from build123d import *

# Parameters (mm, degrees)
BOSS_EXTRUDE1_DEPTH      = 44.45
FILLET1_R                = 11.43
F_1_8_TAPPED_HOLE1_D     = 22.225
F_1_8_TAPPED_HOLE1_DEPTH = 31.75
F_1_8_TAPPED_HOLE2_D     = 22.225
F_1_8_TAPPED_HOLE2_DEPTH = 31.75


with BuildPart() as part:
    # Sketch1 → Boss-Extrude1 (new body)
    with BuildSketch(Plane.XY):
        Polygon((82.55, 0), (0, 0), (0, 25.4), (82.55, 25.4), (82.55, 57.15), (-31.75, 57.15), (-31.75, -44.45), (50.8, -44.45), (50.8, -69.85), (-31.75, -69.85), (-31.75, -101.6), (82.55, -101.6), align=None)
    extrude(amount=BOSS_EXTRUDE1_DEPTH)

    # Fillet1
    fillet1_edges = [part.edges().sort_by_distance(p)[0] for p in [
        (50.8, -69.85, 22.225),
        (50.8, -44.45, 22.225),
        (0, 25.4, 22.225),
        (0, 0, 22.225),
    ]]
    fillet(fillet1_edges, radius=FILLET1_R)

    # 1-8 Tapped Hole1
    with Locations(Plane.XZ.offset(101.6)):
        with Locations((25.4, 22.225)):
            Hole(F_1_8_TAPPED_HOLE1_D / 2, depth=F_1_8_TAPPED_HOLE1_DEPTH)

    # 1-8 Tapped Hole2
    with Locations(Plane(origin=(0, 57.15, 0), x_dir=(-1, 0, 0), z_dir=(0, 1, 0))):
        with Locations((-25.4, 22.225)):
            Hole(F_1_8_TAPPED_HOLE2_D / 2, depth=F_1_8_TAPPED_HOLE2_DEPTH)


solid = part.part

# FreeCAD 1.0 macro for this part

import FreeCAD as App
import Part
import Sketcher
from FreeCAD import Vector
Q = App.Units.Quantity


def edges_at(feature, points):
    """Names of the edges that pass closest to the given points."""
    edges = feature.Shape.Edges
    near = lambda p: min(range(len(edges)), key=lambda i: edges[i].distToShape(Part.Vertex(*p))[0])
    return sorted({f"Edge{near(p) + 1}" for p in points})


def add_polygon(sketch, points):
    """Adds a closed chain of lines whose ends are joined by coincident constraints."""
    first, n = sketch.GeometryCount, len(points)
    for a, b in zip(points, points[1:] + points[:1]):
        sketch.addGeometry(Part.LineSegment(App.Vector(*a, 0), App.Vector(*b, 0)), False)
    for i in range(n):
        sketch.addConstraint(Sketcher.Constraint("Coincident", first + i, 2, first + (i + 1) % n, 1))

doc = App.newDocument("Part")
body = doc.addObject("PartDesign::Body", "Body")

sketch1 = doc.addObject("Sketcher::SketchObject", "Sketch")
body.addObject(sketch1)
sketch1.AttachmentSupport = (doc.XY_Plane, [""])
sketch1.MapMode = "FlatFace"
add_polygon(sketch1, [(83, 0), (0, 0), (0, 25), (83, 25), (83, 57), (-32, 57), (-32, -44), (51, -44), (51, -70), (-32, -70), (-32, -102), (83, -102)])
sketch1.addConstraint([
    Sketcher.Constraint("Horizontal", 0),
    Sketcher.Constraint("Vertical", 1),
    Sketcher.Constraint("Horizontal", 2),
    Sketcher.Constraint("Vertical", 3),
    Sketcher.Constraint("Horizontal", 4),
    Sketcher.Constraint("Vertical", 5),
    Sketcher.Constraint("Horizontal", 6),
    Sketcher.Constraint("Vertical", 7),
    Sketcher.Constraint("Horizontal", 8),
    Sketcher.Constraint("Vertical", 9),
    Sketcher.Constraint("Horizontal", 10),
    Sketcher.Constraint("Vertical", 11),
    Sketcher.Constraint("Coincident", 0, 2, -1, 1),
    Sketcher.Constraint("Vertical", 5, 2, 8, 2),
    Sketcher.Constraint("Vertical", 3, 2, 10, 2),
    Sketcher.Constraint("Equal", 2, 6),
    Sketcher.Constraint("Equal", 1, 7),
    Sketcher.Constraint("Equal", 3, 9),
    Sketcher.Constraint("DistanceY", 1, 1, 1, 2, Q("1 in")),
    Sketcher.Constraint("DistanceY", 5, 2, 5, 1, Q("4 in")),
    Sketcher.Constraint("DistanceX", 4, 2, 4, 1, Q("4.5 in")),
    Sketcher.Constraint("DistanceX", -1, 1, 6, 2, Q("2 in")),
    Sketcher.Constraint("DistanceY", 3, 1, 3, 2, Q("1.25 in")),
])
pad1 = doc.addObject("PartDesign::Pad", "Pad")
body.addObject(pad1)
pad1.Profile = sketch1
pad1.Length = Q("1.75 in")
doc.recompute()

fillet = doc.addObject("PartDesign::Fillet", "Fillet")
body.addObject(fillet)
fillet.Base = (pad1, edges_at(pad1, [
    (50.8, -69.85, 22.225),
    (50.8, -44.45, 22.225),
    (0, 25.4, 22.225),
    (0, 0, 22.225),
]))
fillet.Radius = Q("0.45 in")

sketch2 = doc.addObject("Sketcher::SketchObject", "Sketch001")
body.addObject(sketch2)
sketch2.AttachmentSupport = (doc.XZ_Plane, [""])
sketch2.MapMode = "FlatFace"
sketch2.AttachmentOffset = App.Placement(Vector(0, 0, 4 * 25.4), App.Rotation())
sketch2.addGeometry(Part.Circle(Vector(25, 22, 0), Vector(0, 0, 1), 11), False)
sketch2.addConstraint([
    Sketcher.Constraint("Diameter", 0, Q("0.875 in")),
    Sketcher.Constraint("DistanceX", -1, 1, 0, 3, Q("1 in")),
    Sketcher.Constraint("DistanceY", -1, 1, 0, 3, Q("0.875 in")),
])
doc.recompute()
hole = doc.addObject("PartDesign::Hole", "Hole")
body.addObject(hole)
hole.Profile = sketch2
hole.ThreadType = "None"
hole.Diameter = Q("0.875 in")
hole.DepthType = "Dimension"
hole.Depth = Q("1.25 in")
hole.DrillPoint = "Flat"

sketch3 = doc.addObject("Sketcher::SketchObject", "Sketch002")
body.addObject(sketch3)
sketch3.AttachmentSupport = (doc.XZ_Plane, [""])
sketch3.MapMode = "FlatFace"
sketch3.AttachmentOffset = App.Placement(Vector(0, 0, -2.25 * 25.4), App.Rotation())
sketch3.addGeometry(Part.Circle(Vector(25, 22, 0), Vector(0, 0, 1), 11), False)
sketch3.addConstraint([
    Sketcher.Constraint("Diameter", 0, Q("0.875 in")),
    Sketcher.Constraint("DistanceX", -1, 1, 0, 3, Q("1 in")),
    Sketcher.Constraint("DistanceY", -1, 1, 0, 3, Q("0.875 in")),
])
doc.recompute()
hole2 = doc.addObject("PartDesign::Hole", "Hole001")
body.addObject(hole2)
hole2.Profile = sketch3
hole2.ThreadType = "None"
hole2.Diameter = Q("0.875 in")
hole2.DepthType = "Dimension"
hole2.Depth = Q("1.25 in")
hole2.DrillPoint = "Flat"
hole2.Reversed = True

doc.recompute()
